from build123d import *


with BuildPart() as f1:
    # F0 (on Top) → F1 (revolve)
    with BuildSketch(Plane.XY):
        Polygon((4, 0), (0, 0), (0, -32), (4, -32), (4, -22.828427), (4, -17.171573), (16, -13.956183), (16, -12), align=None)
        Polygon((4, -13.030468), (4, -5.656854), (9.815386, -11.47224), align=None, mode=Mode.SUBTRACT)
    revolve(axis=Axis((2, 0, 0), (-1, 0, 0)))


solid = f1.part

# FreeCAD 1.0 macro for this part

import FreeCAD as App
import Part
import Sketcher
Q = App.Units.Quantity

doc = App.newDocument("Part")
body = doc.addObject("PartDesign::Body", "Body")

sketch1 = body.newObject("Sketcher::SketchObject", "Sketch")
sketch1.AttachmentSupport = (doc.getObject("XY_Plane"), [""])
sketch1.MapMode = "FlatFace"
sketch1.addGeometry(Part.LineSegment(App.Vector(4, 0, 0), App.Vector(0, 0, 0)), False)
sketch1.addGeometry(Part.LineSegment(App.Vector(0, 0, 0), App.Vector(0, -32, 0)), False)
sketch1.addGeometry(Part.LineSegment(App.Vector(0, -32, 0), App.Vector(4, -32, 0)), False)
sketch1.addGeometry(Part.LineSegment(App.Vector(4, -32, 0), App.Vector(4, -17.2, 0)), False)
sketch1.addGeometry(Part.LineSegment(App.Vector(4, -17.2, 0), App.Vector(16, -14, 0)), False)
sketch1.addGeometry(Part.LineSegment(App.Vector(16, -14, 0), App.Vector(16, -12, 0)), False)
sketch1.addGeometry(Part.LineSegment(App.Vector(16, -12, 0), App.Vector(4, 0, 0)), False)
sketch1.addGeometry(Part.LineSegment(App.Vector(9.8, -11.5, 0), App.Vector(4, -13, 0)), False)
sketch1.addGeometry(Part.LineSegment(App.Vector(4, -13, 0), App.Vector(4, -5.7, 0)), False)
sketch1.addGeometry(Part.LineSegment(App.Vector(4, -5.7, 0), App.Vector(9.8, -11.5, 0)), False)
sketch1.addConstraint(Sketcher.Constraint("Coincident", 0, 2, 1, 1))
sketch1.addConstraint(Sketcher.Constraint("Coincident", 1, 2, 2, 1))
sketch1.addConstraint(Sketcher.Constraint("Coincident", 2, 2, 3, 1))
sketch1.addConstraint(Sketcher.Constraint("Coincident", 3, 2, 4, 1))
sketch1.addConstraint(Sketcher.Constraint("Coincident", 4, 2, 5, 1))
sketch1.addConstraint(Sketcher.Constraint("Coincident", 5, 2, 6, 1))
sketch1.addConstraint(Sketcher.Constraint("Coincident", 6, 2, 0, 1))
sketch1.addConstraint(Sketcher.Constraint("Coincident", 7, 2, 8, 1))
sketch1.addConstraint(Sketcher.Constraint("Coincident", 8, 2, 9, 1))
sketch1.addConstraint(Sketcher.Constraint("Coincident", 9, 2, 7, 1))
sketch1.addConstraint(Sketcher.Constraint("Horizontal", 0))
sketch1.addConstraint(Sketcher.Constraint("Vertical", 1))
sketch1.addConstraint(Sketcher.Constraint("Horizontal", 2))
sketch1.addConstraint(Sketcher.Constraint("Vertical", 3))
sketch1.addConstraint(Sketcher.Constraint("Vertical", 5))
sketch1.addConstraint(Sketcher.Constraint("Vertical", 8))
sketch1.addConstraint(Sketcher.Constraint("Coincident", 0, 2, -1, 1))
sketch1.addConstraint(Sketcher.Constraint("Parallel", 4, 7))
sketch1.addConstraint(Sketcher.Constraint("Parallel", 6, 9))
sketch1.addConstraint(Sketcher.Constraint("Vertical", 3, 2, 6, 2))
sketch1.addConstraint(Sketcher.Constraint("Vertical", 6, 2, 7, 2))
sketch1.addConstraint(Sketcher.Constraint("DistanceX", 0, 2, 0, 1, 4.0))
sketch1.addConstraint(Sketcher.Constraint("DistanceY", 1, 2, 1, 1, 32.0))
sketch1.addConstraint(Sketcher.Constraint("Angle", 4, Q("14.999999 deg")))
sketch1.addConstraint(Sketcher.Constraint("Angle", 6, Q("135 deg")))
sketch1.addConstraint(Sketcher.Constraint("DistanceX", -1, 1, 4, 2, 16.0))
sketch1.addConstraint(Sketcher.Constraint("Distance", 7, 6.020531))
sketch1.addConstraint(Sketcher.Constraint("DistanceY", 3, 1, 3, 2, 14.828427))
sketch1.addConstraint(Sketcher.Constraint("DistanceY", 7, 2, -1, 1, 13.030468))
revolution = body.newObject("PartDesign::Revolution", "Revolution")
revolution.Profile = sketch1
revolution.ReferenceAxis = (sketch1, ["H_Axis"])
revolution.Angle = 360

doc.recompute()
